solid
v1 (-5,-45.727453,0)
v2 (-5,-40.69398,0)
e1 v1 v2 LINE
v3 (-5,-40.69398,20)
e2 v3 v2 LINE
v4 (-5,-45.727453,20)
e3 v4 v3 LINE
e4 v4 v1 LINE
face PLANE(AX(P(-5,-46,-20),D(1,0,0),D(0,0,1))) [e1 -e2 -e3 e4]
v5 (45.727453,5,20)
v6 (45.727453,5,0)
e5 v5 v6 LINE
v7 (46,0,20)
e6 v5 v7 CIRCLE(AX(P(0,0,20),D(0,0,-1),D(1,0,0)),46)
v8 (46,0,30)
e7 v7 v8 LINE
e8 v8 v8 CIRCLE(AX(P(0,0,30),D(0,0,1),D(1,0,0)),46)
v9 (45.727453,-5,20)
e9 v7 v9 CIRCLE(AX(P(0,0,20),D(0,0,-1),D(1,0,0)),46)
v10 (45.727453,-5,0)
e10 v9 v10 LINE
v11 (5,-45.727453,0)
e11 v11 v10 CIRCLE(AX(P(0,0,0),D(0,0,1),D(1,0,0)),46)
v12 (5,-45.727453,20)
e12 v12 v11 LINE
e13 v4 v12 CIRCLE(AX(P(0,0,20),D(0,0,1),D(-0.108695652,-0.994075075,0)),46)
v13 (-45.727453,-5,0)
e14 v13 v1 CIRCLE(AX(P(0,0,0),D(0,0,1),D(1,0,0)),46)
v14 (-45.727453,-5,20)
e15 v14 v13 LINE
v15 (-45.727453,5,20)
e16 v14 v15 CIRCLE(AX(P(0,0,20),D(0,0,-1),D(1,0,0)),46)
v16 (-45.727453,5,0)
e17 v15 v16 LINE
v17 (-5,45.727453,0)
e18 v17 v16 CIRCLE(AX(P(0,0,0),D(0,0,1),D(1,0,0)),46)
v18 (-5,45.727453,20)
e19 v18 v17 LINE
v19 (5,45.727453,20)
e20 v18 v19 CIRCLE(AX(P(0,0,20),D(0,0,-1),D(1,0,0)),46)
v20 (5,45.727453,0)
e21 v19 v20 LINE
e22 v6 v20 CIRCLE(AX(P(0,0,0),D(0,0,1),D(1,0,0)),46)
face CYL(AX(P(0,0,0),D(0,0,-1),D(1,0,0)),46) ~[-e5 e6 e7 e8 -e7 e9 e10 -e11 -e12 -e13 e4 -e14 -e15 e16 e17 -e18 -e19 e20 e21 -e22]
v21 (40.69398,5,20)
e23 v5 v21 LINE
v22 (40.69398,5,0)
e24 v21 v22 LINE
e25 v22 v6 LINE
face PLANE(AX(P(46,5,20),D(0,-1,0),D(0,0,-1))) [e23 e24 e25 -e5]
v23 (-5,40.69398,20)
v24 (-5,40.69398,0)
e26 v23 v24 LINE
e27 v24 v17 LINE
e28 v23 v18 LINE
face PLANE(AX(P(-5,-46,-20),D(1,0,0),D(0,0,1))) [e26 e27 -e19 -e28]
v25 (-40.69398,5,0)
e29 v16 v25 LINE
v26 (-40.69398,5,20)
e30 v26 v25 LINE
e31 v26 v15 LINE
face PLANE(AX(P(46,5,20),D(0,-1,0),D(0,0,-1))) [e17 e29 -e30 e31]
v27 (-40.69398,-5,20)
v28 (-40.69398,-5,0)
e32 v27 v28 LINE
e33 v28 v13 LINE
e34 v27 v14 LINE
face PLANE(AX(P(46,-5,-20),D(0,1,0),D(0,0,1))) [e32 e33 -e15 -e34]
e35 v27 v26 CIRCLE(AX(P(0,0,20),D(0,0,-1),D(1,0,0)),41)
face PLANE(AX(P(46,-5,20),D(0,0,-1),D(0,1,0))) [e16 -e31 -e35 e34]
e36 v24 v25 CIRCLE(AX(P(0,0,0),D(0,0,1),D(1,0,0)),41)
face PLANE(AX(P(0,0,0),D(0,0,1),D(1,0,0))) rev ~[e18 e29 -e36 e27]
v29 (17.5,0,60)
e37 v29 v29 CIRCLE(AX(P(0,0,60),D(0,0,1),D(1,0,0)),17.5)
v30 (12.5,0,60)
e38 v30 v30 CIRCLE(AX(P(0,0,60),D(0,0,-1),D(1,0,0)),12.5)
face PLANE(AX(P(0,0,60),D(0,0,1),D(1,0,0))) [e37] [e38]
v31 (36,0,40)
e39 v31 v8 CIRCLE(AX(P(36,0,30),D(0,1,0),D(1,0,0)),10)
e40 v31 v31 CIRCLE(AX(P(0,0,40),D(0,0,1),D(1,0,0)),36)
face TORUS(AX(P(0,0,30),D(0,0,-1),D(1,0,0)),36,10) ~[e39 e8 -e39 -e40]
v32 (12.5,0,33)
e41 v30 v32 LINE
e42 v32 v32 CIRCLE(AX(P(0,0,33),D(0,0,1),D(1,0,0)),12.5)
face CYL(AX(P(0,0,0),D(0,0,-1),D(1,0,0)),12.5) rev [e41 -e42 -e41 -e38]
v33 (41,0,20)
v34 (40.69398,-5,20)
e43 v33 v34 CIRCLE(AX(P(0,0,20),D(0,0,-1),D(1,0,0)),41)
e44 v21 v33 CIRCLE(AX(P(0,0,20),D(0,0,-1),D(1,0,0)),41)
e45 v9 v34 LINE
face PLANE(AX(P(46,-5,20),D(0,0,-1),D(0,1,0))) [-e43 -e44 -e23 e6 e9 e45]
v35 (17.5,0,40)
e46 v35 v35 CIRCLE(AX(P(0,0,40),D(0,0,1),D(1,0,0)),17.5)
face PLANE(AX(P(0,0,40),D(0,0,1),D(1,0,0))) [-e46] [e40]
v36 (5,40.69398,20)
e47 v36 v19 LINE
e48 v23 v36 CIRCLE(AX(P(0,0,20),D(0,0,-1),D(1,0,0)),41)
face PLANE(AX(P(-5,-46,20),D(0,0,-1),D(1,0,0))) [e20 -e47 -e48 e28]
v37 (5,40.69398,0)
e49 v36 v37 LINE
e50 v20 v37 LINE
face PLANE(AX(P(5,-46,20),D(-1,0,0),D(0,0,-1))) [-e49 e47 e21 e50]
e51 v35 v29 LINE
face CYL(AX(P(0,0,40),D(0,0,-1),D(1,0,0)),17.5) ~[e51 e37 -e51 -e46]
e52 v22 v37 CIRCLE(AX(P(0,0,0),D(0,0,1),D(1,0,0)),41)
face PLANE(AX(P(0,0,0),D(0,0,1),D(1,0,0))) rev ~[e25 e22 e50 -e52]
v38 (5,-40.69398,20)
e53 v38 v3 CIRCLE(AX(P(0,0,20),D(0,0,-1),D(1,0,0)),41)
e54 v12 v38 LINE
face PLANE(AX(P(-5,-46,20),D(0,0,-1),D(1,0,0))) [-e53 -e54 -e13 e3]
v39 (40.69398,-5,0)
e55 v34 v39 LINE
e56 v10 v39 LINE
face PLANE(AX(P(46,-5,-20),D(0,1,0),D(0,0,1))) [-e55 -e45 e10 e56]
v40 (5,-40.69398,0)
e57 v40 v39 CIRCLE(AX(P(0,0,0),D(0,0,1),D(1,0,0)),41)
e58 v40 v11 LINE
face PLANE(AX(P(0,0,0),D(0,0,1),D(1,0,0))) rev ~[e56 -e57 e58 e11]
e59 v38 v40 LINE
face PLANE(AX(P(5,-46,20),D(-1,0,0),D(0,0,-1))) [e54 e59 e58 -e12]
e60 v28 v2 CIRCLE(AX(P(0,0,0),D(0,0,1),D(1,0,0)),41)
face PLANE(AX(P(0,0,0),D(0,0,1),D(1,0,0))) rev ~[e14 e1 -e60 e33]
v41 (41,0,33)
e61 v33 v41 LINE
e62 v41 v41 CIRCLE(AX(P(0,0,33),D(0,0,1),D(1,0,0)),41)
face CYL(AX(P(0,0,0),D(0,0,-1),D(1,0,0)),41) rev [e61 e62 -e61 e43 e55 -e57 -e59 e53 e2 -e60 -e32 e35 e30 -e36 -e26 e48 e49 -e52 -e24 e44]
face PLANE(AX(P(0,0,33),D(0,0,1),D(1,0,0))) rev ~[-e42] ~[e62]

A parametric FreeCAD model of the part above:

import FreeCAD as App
import Part
import Sketcher
from FreeCAD import Vector


def edges_at(feature, points):
    """Names of the edges that pass closest to the given points."""
    edges = feature.Shape.Edges
    near = lambda p: min(range(len(edges)), key=lambda i: edges[i].distToShape(Part.Vertex(*p))[0])
    return sorted({f"Edge{near(p) + 1}" for p in points})

doc = App.newDocument("Part")
params = doc.addObject("Spreadsheet::Sheet", "Params")
for row, (alias, value) in enumerate([
    ("sketch1_diameter", "92 mm"),
    ("sketch1_diameter2", "25 mm"),
    ("pad1_length", "40 mm"),
    ("fillet_radius", "10 mm"),
    ("sketch2_diameter", "82 mm"),
    ("sketch2_diameter2", "25 mm"),
    ("pocket1_length", "33 mm"),
    ("sketch3_diameter", "35 mm"),
    ("pad2_length", "20 mm"),
    ("sketch4_diameter", "25 mm"),
    ("pocket2_length", "118.5 mm"),
    ("sketch5_width", "10 mm"),
    ("sketch5_height", "40 mm"),
    ("pocket3_length", "154.5 mm"),
    ("sketch6_width", "10 mm"),
    ("sketch6_height", "40 mm"),
    ("pocket4_length", "154.5 mm"),
], start=1):
    params.set(f"A{row}", alias)
    params.set(f"B{row}", "=" + value)
    params.setAlias(f"B{row}", alias)

body = doc.addObject("PartDesign::Body", "Body")

# Sketch on XY plane
sketch1 = body.newObject("Sketcher::SketchObject", "Sketch")
sketch1.AttachmentSupport = (doc.getObject("XY_Plane"), [""])
sketch1.MapMode = "FlatFace"
sketch1.addGeometry([
    Part.Circle(Vector(0, 0, 0), Vector(0, 0, 1), 46),
    Part.Circle(Vector(0, 0, 0), Vector(0, 0, 1), 12),
], False)
sketch1.addConstraint([
    Sketcher.Constraint("Coincident", 0, 3, -1, 1),
    Sketcher.Constraint("Coincident", 1, 3, -1, 1),
    Sketcher.Constraint("Diameter", 0, 92.0),
    Sketcher.Constraint("Diameter", 1, 25.0),
])
sketch1.setExpression("Constraints[2]", "Params.sketch1_diameter")
sketch1.setExpression("Constraints[3]", "Params.sketch1_diameter2")
pad1 = body.newObject("PartDesign::Pad", "Pad")
pad1.Profile = sketch1
pad1.setExpression("Length", "Params.pad1_length")
doc.recompute()

fillet = body.newObject("PartDesign::Fillet", "Fillet")
fillet.Base = (pad1, edges_at(pad1, [(-46, 0, 40)]))
fillet.setExpression("Radius", "Params.fillet_radius")

# Sketch on XY plane
sketch2 = body.newObject("Sketcher::SketchObject", "Sketch001")
sketch2.AttachmentSupport = (doc.getObject("XY_Plane"), [""])
sketch2.MapMode = "FlatFace"
sketch2.addGeometry([
    Part.Circle(Vector(0, 0, 0), Vector(0, 0, 1), 41),
    Part.Circle(Vector(0, 0, 0), Vector(0, 0, 1), 12),
], False)
sketch2.addConstraint([
    Sketcher.Constraint("Coincident", 0, 3, -1, 1),
    Sketcher.Constraint("Coincident", 1, 3, -1, 1),
    Sketcher.Constraint("Diameter", 0, 82.0),
    Sketcher.Constraint("Diameter", 1, 25.0),
])
sketch2.setExpression("Constraints[2]", "Params.sketch2_diameter")
sketch2.setExpression("Constraints[3]", "Params.sketch2_diameter2")
pocket1 = body.newObject("PartDesign::Pocket", "Pocket")
pocket1.Profile = sketch2
pocket1.setExpression("Length", "Params.pocket1_length")
pocket1.Reversed = True

# Sketch on XY plane
sketch3 = body.newObject("Sketcher::SketchObject", "Sketch002")
sketch3.AttachmentSupport = (doc.getObject("XY_Plane"), [""])
sketch3.MapMode = "FlatFace"
sketch3.AttachmentOffset = App.Placement(Vector(0, 0, 40), App.Rotation())
sketch3.addGeometry(Part.Circle(Vector(0, 0, 0), Vector(0, 0, 1), 18), False)
sketch3.addConstraint([
    Sketcher.Constraint("Coincident", 0, 3, -1, 1),
    Sketcher.Constraint("Diameter", 0, 35.0),
])
sketch3.setExpression("Constraints[1]", "Params.sketch3_diameter")
pad2 = body.newObject("PartDesign::Pad", "Pad001")
pad2.Profile = sketch3
pad2.setExpression("Length", "Params.pad2_length")

# Sketch on XY plane
sketch4 = body.newObject("Sketcher::SketchObject", "Sketch003")
sketch4.AttachmentSupport = (doc.getObject("XY_Plane"), [""])
sketch4.MapMode = "FlatFace"
sketch4.addGeometry(Part.Circle(Vector(0, 0, 0), Vector(0, 0, 1), 12), False)
sketch4.addConstraint([
    Sketcher.Constraint("Coincident", 0, 3, -1, 1),
    Sketcher.Constraint("Diameter", 0, 25.0),
])
sketch4.setExpression("Constraints[1]", "Params.sketch4_diameter")
pocket2 = body.newObject("PartDesign::Pocket", "Pocket001")
pocket2.Profile = sketch4
pocket2.setExpression("Length", "Params.pocket2_length")
pocket2.Reversed = True

# Sketch on XZ plane
sketch5 = body.newObject("Sketcher::SketchObject", "Sketch004")
sketch5.AttachmentSupport = (doc.getObject("XZ_Plane"), [""])
sketch5.MapMode = "FlatFace"
sketch5.AttachmentOffset = App.Placement(Vector(0, 0, 46), App.Rotation())
sketch5.addGeometry([
    Part.LineSegment(Vector(-5, -20, 0), Vector(-5, 20, 0)),
    Part.LineSegment(Vector(-5, 20, 0), Vector(5, 20, 0)),
    Part.LineSegment(Vector(5, 20, 0), Vector(5, -20, 0)),
    Part.LineSegment(Vector(5, -20, 0), Vector(-5, -20, 0)),
], False)
sketch5.addConstraint([
    Sketcher.Constraint("Coincident", 0, 2, 1, 1),
    Sketcher.Constraint("Coincident", 1, 2, 2, 1),
    Sketcher.Constraint("Coincident", 2, 2, 3, 1),
    Sketcher.Constraint("Coincident", 3, 2, 0, 1),
    Sketcher.Constraint("Vertical", 0),
    Sketcher.Constraint("Horizontal", 1),
    Sketcher.Constraint("Vertical", 2),
    Sketcher.Constraint("Horizontal", 3),
    Sketcher.Constraint("Symmetric", 0, 2, 2, 2, -1, 1),
    Sketcher.Constraint("DistanceX", 1, 1, 1, 2, 10.0),
    Sketcher.Constraint("DistanceY", 0, 1, 0, 2, 40.0),
])
sketch5.setExpression("Constraints[9]", "Params.sketch5_width")
sketch5.setExpression("Constraints[10]", "Params.sketch5_height")
pocket3 = body.newObject("PartDesign::Pocket", "Pocket002")
pocket3.Profile = sketch5
pocket3.setExpression("Length", "Params.pocket3_length")

# Sketch on YZ plane
sketch6 = body.newObject("Sketcher::SketchObject", "Sketch005")
sketch6.AttachmentSupport = (doc.getObject("YZ_Plane"), [""])
sketch6.MapMode = "FlatFace"
sketch6.AttachmentOffset = App.Placement(Vector(0, 0, 46), App.Rotation())
sketch6.addGeometry([
    Part.LineSegment(Vector(5, 20, 0), Vector(-5, 20, 0)),
    Part.LineSegment(Vector(-5, 20, 0), Vector(-5, -20, 0)),
    Part.LineSegment(Vector(-5, -20, 0), Vector(5, -20, 0)),
    Part.LineSegment(Vector(5, -20, 0), Vector(5, 20, 0)),
], False)
sketch6.addConstraint([
    Sketcher.Constraint("Coincident", 0, 2, 1, 1),
    Sketcher.Constraint("Coincident", 1, 2, 2, 1),
    Sketcher.Constraint("Coincident", 2, 2, 3, 1),
    Sketcher.Constraint("Coincident", 3, 2, 0, 1),
    Sketcher.Constraint("Horizontal", 0),
    Sketcher.Constraint("Vertical", 1),
    Sketcher.Constraint("Horizontal", 2),
    Sketcher.Constraint("Vertical", 3),
    Sketcher.Constraint("Symmetric", 0, 2, 2, 2, -1, 1),
    Sketcher.Constraint("DistanceX", 0, 2, 0, 1, 10.0),
    Sketcher.Constraint("DistanceY", 1, 2, 1, 1, 40.0),
])
sketch6.setExpression("Constraints[9]", "Params.sketch6_width")
sketch6.setExpression("Constraints[10]", "Params.sketch6_height")
pocket4 = body.newObject("PartDesign::Pocket", "Pocket003")
pocket4.Profile = sketch6
pocket4.setExpression("Length", "Params.pocket4_length")

doc.recompute()
